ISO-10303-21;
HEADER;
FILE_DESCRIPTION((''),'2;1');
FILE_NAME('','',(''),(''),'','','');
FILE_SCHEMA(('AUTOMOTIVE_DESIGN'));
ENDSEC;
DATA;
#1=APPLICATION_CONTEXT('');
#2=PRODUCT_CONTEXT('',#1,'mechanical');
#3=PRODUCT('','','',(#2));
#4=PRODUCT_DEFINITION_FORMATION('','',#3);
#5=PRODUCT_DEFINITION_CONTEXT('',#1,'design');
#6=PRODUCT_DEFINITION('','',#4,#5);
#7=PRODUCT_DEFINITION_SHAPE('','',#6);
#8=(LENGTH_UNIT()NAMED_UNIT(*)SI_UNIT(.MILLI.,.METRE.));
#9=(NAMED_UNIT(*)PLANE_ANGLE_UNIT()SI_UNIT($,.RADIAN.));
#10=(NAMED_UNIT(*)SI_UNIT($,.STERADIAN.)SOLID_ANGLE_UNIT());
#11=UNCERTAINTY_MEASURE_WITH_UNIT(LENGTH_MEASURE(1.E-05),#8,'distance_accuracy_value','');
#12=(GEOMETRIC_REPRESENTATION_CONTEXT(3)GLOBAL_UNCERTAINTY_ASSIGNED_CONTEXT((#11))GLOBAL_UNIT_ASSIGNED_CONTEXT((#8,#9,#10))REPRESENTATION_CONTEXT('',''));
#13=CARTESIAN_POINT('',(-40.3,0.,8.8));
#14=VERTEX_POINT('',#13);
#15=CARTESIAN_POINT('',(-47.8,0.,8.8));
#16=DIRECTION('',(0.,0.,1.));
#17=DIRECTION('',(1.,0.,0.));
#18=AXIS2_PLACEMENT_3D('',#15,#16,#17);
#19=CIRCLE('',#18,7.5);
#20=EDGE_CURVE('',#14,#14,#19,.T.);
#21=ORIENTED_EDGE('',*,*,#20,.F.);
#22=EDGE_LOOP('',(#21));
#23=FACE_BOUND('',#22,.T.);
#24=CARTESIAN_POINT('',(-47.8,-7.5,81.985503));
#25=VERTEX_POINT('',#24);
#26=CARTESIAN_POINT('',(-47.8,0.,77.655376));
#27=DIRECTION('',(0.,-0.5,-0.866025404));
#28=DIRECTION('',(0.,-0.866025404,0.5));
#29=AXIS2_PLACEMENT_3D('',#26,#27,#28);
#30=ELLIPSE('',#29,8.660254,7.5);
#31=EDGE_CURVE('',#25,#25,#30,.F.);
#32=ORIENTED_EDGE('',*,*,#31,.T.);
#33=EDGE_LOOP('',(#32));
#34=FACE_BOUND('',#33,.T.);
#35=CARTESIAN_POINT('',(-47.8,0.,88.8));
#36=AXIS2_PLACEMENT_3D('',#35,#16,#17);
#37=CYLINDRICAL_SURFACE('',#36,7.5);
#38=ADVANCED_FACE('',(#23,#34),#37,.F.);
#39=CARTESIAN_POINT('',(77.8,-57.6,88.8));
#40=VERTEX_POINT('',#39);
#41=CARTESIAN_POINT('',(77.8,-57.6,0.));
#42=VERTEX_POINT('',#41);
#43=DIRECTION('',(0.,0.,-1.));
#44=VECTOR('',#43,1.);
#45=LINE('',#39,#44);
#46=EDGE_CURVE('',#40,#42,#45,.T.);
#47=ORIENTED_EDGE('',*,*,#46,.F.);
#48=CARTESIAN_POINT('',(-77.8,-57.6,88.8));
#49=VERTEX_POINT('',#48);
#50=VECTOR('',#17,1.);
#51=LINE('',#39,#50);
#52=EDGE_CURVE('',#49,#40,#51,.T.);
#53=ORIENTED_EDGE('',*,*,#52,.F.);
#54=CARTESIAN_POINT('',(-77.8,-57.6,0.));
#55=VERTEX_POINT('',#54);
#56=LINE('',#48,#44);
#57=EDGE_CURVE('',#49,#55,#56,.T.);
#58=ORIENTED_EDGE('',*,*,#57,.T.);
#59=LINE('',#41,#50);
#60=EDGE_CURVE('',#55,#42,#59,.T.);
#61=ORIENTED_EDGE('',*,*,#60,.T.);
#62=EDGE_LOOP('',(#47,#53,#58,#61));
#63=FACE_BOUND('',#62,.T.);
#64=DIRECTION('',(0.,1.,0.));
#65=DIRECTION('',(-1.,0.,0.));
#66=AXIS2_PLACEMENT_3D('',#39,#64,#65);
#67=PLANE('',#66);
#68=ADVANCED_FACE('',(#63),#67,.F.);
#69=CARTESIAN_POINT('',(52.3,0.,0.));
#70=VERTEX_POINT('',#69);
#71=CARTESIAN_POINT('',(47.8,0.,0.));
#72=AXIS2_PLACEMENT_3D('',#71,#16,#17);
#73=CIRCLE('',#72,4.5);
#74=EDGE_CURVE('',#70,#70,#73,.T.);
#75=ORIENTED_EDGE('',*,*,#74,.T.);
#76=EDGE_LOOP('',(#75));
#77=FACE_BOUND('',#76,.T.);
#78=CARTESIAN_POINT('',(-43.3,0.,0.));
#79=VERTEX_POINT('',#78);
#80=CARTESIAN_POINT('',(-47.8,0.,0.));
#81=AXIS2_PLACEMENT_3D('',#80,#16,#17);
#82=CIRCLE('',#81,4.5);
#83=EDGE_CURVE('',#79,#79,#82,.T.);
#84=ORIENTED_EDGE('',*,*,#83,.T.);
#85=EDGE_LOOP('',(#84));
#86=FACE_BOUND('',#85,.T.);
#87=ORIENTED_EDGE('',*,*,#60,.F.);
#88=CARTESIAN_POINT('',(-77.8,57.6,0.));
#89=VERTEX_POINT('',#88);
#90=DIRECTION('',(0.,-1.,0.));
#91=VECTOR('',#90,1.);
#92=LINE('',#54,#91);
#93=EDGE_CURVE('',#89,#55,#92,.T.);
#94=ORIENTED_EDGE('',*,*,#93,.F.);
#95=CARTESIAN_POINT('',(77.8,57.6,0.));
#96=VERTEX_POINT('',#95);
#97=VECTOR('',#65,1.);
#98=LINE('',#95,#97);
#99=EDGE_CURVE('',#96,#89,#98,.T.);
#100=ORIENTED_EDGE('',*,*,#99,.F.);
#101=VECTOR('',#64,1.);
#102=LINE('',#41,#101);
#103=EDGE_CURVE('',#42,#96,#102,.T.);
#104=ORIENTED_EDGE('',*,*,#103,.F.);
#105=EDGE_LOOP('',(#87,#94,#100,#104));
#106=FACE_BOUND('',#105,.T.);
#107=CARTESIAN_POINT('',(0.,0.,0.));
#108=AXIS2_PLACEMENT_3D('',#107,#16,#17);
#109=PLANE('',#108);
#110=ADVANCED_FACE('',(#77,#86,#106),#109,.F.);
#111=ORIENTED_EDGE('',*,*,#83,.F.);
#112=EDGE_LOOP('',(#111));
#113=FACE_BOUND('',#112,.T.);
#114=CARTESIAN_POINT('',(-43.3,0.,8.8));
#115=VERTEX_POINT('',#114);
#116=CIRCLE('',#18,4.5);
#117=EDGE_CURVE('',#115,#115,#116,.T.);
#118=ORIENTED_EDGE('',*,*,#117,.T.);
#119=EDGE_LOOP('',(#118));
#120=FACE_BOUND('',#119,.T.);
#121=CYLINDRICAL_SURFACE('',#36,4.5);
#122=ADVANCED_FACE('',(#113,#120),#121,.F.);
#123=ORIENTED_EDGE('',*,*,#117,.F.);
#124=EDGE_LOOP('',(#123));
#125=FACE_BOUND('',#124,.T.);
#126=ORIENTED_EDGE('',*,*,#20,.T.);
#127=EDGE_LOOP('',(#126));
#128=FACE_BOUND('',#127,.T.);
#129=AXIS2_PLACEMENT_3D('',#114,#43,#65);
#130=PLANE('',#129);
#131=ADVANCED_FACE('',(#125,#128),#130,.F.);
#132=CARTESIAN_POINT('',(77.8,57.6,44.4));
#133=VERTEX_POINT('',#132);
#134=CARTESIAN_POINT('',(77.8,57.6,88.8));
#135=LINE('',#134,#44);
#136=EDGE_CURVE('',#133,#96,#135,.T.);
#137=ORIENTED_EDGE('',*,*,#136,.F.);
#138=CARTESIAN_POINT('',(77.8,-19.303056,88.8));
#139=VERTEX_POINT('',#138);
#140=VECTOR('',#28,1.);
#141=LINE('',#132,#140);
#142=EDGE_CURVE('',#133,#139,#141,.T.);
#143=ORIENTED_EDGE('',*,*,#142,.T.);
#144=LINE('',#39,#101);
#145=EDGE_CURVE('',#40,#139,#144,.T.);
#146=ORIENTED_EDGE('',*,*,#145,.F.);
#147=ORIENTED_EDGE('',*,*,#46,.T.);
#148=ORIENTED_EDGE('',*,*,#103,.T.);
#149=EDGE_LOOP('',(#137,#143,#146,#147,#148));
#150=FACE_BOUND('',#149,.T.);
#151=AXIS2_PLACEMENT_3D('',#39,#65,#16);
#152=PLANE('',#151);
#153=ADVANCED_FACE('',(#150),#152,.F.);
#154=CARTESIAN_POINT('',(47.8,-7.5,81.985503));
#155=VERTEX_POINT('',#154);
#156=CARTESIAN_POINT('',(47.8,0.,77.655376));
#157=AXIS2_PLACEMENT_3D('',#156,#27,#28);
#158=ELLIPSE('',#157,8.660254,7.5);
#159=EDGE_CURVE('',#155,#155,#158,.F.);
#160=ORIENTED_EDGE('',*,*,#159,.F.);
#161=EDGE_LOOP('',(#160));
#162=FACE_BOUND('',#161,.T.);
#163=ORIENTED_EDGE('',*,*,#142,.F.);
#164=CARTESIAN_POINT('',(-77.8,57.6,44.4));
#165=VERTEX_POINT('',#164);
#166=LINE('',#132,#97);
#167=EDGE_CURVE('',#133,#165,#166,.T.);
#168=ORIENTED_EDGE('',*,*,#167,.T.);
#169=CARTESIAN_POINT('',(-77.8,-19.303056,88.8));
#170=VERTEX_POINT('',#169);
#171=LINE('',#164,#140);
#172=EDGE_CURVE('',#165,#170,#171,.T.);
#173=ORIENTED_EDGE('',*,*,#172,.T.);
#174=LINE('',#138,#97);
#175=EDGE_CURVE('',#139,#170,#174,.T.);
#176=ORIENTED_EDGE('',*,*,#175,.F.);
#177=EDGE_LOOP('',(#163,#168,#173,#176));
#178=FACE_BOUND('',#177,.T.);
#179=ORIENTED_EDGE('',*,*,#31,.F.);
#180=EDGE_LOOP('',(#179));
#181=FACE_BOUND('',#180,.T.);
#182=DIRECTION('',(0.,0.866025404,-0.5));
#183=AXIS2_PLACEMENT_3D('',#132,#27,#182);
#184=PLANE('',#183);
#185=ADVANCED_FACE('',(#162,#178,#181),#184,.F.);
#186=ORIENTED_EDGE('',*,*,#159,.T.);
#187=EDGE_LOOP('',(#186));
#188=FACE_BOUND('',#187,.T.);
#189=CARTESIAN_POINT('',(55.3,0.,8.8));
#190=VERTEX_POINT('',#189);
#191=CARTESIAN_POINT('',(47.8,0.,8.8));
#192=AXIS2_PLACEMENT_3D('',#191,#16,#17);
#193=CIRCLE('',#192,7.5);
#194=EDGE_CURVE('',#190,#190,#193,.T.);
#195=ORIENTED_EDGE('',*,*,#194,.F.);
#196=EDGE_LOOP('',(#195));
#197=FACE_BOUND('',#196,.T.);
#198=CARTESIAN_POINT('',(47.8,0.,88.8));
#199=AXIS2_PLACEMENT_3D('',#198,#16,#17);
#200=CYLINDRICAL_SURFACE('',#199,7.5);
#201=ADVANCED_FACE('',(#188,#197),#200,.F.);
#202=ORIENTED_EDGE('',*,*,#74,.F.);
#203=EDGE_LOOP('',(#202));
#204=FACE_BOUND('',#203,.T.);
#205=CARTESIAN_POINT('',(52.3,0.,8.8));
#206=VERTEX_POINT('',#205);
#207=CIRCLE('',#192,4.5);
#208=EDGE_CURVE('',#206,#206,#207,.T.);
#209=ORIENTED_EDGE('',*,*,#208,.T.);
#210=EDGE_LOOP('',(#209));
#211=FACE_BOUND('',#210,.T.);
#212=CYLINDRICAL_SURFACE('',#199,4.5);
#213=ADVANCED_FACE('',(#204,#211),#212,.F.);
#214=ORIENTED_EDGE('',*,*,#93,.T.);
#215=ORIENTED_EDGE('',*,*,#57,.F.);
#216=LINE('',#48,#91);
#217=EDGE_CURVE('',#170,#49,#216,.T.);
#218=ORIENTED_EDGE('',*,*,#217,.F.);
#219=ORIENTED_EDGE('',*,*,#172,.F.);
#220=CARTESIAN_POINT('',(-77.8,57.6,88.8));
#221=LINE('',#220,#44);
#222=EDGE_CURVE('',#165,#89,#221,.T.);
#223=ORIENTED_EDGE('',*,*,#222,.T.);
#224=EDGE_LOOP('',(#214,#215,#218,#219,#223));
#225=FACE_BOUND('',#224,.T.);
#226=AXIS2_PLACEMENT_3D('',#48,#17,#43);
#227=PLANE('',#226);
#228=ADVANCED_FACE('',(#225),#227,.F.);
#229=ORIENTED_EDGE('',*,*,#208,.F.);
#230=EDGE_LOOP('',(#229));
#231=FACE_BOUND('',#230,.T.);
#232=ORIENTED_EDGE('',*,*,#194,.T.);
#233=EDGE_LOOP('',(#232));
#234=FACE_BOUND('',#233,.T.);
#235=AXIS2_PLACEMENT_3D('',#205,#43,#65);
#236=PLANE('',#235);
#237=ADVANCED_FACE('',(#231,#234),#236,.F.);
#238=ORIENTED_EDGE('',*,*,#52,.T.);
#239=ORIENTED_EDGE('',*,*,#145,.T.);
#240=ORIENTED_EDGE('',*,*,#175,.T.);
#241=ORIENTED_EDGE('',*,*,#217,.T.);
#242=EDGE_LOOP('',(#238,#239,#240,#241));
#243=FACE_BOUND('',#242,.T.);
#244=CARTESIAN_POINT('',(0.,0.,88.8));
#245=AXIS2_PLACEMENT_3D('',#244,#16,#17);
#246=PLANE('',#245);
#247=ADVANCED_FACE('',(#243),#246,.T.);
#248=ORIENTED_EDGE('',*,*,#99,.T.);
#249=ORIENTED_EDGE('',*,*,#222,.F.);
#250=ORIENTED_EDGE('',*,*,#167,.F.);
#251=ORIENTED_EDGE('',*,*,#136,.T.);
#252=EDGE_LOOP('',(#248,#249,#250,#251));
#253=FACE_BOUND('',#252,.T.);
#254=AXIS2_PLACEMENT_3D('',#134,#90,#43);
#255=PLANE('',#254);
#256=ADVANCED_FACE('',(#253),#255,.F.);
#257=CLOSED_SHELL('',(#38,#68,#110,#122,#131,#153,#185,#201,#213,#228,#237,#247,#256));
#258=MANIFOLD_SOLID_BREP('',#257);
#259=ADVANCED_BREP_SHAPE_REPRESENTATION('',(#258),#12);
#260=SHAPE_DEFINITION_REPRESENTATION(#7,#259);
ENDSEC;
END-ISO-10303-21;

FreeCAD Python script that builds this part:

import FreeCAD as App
import Part
import Sketcher
Q = App.Units.Quantity

doc = App.newDocument("Part")
body = doc.addObject("PartDesign::Body", "Body")

# Sketch on XY plane
sketch1 = body.newObject("Sketcher::SketchObject", "Sketch")
sketch1.AttachmentSupport = (doc.getObject("XY_Plane"), [""])
sketch1.MapMode = "FlatFace"
sketch1.addGeometry(Part.LineSegment(App.Vector(-78, 58, 0), App.Vector(-78, -58, 0)), False)
sketch1.addGeometry(Part.LineSegment(App.Vector(-78, -58, 0), App.Vector(78, -58, 0)), False)
sketch1.addGeometry(Part.LineSegment(App.Vector(78, -58, 0), App.Vector(78, 58, 0)), False)
sketch1.addGeometry(Part.LineSegment(App.Vector(78, 58, 0), App.Vector(-78, 58, 0)), False)
sketch1.addConstraint(Sketcher.Constraint("Coincident", 0, 2, 1, 1))
sketch1.addConstraint(Sketcher.Constraint("Coincident", 1, 2, 2, 1))
sketch1.addConstraint(Sketcher.Constraint("Coincident", 2, 2, 3, 1))
sketch1.addConstraint(Sketcher.Constraint("Coincident", 3, 2, 0, 1))
sketch1.addConstraint(Sketcher.Constraint("Vertical", 0))
sketch1.addConstraint(Sketcher.Constraint("Horizontal", 1))
sketch1.addConstraint(Sketcher.Constraint("Vertical", 2))
sketch1.addConstraint(Sketcher.Constraint("Horizontal", 3))
sketch1.addConstraint(Sketcher.Constraint("Symmetric", 0, 2, 2, 2, -1, 1))
sketch1.addConstraint(Sketcher.Constraint("DistanceX", 1, 1, 1, 2, Q("155.6 mm")))
sketch1.addConstraint(Sketcher.Constraint("DistanceY", 0, 2, 0, 1, Q("115.2 mm")))
pad1 = body.newObject("PartDesign::Pad", "Pad")
pad1.Profile = sketch1
pad1.Length = 88.8

# Sketch on XY plane
sketch2 = body.newObject("Sketcher::SketchObject", "Sketch001")
sketch2.AttachmentSupport = (doc.getObject("XY_Plane"), [""])
sketch2.MapMode = "FlatFace"
sketch2.AttachmentOffset = App.Placement(App.Vector(0, 0, 88.8), App.Rotation())
sketch2.addGeometry(Part.Circle(App.Vector(-47.8, 0, 0), App.Vector(0, 0, 1), 4.5), False)
sketch2.addConstraint(Sketcher.Constraint("PointOnObject", 0, 3, -1))
sketch2.addConstraint(Sketcher.Constraint("Diameter", 0, Q("9 mm")))
sketch2.addConstraint(Sketcher.Constraint("DistanceX", 0, 3, -1, 1, Q("47.8 mm")))
doc.recompute()
hole = body.newObject("PartDesign::Hole", "Hole")
hole.Profile = sketch2
hole.ThreadType = "None"
hole.Diameter = 9
hole.DepthType = "ThroughAll"
hole.HoleCutType = "Counterbore"
hole.HoleCutDiameter = 15
hole.HoleCutDepth = 80
doc.recompute()

mirrored = body.newObject("PartDesign::Mirrored", "Mirrored")
mirrored.Originals = [hole]
mirrored.MirrorPlane = (doc.getObject("YZ_Plane"), [""])
body.Tip = mirrored

# Sketch on YZ plane
sketch3 = body.newObject("Sketcher::SketchObject", "Sketch002")
sketch3.AttachmentSupport = (doc.getObject("YZ_Plane"), [""])
sketch3.MapMode = "FlatFace"
sketch3.AttachmentOffset = App.Placement(App.Vector(0, 0, -77.8), App.Rotation())
sketch3.addGeometry(Part.LineSegment(App.Vector(58, 44, 0), App.Vector(-19, 89, 0)), False)
sketch3.addGeometry(Part.LineSegment(App.Vector(-19, 89, 0), App.Vector(58, 89, 0)), False)
sketch3.addGeometry(Part.LineSegment(App.Vector(58, 89, 0), App.Vector(58, 44, 0)), False)
sketch3.addConstraint(Sketcher.Constraint("Coincident", 0, 2, 1, 1))
sketch3.addConstraint(Sketcher.Constraint("Coincident", 1, 2, 2, 1))
sketch3.addConstraint(Sketcher.Constraint("Coincident", 2, 2, 0, 1))
sketch3.addConstraint(Sketcher.Constraint("Horizontal", 1))
sketch3.addConstraint(Sketcher.Constraint("Vertical", 2))
sketch3.addConstraint(Sketcher.Constraint("Angle", 0, Q("150 deg")))
sketch3.addConstraint(Sketcher.Constraint("DistanceY", 2, 2, 2, 1, Q("44.4 mm")))
sketch3.addConstraint(Sketcher.Constraint("DistanceY", -1, 1, 0, 2, Q("88.8 mm")))
sketch3.addConstraint(Sketcher.Constraint("DistanceX", -1, 1, 1, 2, Q("57.6 mm")))
pocket1 = body.newObject("PartDesign::Pocket", "Pocket")
pocket1.Profile = sketch3
pocket1.Type = "ThroughAll"
pocket1.Reversed = True

doc.recompute()
